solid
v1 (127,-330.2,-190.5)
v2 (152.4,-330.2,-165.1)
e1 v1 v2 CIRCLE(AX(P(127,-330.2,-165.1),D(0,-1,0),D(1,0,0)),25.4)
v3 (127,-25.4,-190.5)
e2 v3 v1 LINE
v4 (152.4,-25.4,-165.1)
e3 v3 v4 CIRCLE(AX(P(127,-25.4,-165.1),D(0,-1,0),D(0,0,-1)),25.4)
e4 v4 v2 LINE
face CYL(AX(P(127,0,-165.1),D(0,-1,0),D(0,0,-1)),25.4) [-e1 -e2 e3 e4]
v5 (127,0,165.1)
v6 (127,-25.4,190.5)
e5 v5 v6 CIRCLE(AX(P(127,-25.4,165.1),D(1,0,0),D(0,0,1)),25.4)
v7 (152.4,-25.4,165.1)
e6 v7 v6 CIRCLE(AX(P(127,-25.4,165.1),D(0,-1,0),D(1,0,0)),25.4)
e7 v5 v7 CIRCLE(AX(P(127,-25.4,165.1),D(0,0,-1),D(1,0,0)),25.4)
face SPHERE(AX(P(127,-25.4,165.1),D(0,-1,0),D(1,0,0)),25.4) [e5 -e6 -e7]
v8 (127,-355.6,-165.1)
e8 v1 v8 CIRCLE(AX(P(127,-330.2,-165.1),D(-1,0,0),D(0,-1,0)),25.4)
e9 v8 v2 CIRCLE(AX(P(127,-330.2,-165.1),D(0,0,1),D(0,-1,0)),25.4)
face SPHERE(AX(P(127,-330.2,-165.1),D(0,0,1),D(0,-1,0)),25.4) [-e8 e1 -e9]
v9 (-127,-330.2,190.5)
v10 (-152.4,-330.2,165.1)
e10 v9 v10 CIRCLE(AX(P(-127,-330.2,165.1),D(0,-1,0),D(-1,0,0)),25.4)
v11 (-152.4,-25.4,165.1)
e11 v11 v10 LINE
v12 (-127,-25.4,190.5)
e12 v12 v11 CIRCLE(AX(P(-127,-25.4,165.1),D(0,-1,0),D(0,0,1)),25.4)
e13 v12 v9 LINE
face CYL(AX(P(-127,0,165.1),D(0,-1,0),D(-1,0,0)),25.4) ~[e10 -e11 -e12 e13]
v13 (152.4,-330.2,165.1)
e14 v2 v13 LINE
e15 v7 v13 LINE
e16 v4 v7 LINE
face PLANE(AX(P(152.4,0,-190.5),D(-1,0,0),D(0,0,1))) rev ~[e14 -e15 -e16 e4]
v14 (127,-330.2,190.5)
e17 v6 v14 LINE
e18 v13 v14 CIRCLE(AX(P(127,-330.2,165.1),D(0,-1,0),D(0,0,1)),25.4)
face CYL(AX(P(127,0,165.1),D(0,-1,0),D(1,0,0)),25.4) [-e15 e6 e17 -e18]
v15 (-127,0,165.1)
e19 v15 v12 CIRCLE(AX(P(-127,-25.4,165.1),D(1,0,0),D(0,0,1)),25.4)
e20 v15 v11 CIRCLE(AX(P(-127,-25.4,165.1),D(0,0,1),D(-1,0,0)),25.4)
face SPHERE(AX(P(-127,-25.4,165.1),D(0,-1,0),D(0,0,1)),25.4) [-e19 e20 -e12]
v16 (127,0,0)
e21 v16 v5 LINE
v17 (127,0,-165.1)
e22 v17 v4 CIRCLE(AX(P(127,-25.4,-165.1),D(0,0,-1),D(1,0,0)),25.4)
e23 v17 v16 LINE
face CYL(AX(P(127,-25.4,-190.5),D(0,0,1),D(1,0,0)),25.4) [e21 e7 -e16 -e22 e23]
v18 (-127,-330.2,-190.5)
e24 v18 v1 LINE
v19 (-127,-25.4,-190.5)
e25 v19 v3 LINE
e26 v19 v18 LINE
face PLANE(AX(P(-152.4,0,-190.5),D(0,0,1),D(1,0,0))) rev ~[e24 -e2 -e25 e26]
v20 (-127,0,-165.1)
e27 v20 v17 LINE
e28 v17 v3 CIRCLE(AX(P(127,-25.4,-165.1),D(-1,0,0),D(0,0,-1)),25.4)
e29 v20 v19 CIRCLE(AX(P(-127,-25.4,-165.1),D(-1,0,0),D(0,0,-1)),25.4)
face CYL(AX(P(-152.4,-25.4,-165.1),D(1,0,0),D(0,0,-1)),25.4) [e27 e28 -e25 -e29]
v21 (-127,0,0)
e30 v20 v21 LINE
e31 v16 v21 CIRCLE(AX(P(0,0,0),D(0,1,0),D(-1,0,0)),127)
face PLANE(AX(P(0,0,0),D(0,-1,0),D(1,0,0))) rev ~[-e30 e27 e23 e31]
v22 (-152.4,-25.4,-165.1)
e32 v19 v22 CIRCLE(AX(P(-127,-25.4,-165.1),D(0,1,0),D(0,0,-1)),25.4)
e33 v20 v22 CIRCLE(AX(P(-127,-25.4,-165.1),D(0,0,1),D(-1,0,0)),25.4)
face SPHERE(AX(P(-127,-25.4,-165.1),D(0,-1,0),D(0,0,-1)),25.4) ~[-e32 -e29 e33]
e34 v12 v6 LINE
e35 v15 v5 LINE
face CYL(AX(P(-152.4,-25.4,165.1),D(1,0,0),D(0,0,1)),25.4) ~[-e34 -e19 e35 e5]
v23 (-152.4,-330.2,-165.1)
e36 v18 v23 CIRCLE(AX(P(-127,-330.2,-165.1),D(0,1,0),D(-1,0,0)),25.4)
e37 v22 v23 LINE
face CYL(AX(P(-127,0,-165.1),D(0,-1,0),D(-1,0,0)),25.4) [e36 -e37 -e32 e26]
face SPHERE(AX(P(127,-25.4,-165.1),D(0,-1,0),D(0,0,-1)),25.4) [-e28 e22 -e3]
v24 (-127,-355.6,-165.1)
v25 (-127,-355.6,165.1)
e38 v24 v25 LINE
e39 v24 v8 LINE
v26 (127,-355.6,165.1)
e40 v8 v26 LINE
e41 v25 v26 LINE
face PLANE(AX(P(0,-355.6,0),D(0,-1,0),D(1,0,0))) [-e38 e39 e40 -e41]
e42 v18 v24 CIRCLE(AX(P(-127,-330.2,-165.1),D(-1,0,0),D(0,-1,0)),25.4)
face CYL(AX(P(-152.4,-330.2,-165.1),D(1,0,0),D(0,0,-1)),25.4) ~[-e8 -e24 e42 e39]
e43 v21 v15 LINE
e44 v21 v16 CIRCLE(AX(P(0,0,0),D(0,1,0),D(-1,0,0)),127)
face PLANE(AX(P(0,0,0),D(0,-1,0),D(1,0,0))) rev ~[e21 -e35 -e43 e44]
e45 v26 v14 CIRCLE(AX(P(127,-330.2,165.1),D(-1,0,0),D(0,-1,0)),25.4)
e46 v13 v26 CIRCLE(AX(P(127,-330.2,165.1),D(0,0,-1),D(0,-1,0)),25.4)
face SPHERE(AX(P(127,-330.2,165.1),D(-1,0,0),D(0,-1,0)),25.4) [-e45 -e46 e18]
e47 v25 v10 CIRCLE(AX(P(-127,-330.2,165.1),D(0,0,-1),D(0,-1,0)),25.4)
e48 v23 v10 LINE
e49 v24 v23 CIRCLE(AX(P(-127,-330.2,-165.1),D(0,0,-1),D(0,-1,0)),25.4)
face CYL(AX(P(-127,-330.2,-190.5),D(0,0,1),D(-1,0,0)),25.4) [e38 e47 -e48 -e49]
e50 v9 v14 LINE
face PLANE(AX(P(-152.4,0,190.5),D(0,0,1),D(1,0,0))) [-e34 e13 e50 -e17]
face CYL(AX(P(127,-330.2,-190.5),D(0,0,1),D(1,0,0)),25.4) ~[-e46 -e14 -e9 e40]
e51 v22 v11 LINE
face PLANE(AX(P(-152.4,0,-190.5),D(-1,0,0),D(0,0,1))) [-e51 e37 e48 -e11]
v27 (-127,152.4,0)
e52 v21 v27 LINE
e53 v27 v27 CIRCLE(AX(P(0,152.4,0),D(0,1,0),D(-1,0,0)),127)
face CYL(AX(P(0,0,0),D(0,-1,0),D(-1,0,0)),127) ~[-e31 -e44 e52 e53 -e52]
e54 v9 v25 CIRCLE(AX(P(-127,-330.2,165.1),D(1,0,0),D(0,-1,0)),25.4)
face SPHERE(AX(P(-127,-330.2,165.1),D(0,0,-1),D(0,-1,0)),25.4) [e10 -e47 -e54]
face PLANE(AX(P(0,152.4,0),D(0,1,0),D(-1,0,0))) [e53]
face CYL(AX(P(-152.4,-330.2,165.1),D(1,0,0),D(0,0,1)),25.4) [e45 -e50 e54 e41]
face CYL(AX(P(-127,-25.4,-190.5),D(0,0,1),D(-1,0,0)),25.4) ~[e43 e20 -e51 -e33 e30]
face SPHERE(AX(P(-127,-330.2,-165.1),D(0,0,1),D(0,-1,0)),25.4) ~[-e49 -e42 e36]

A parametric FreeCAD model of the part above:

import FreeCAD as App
import Part
import Sketcher
Q = App.Units.Quantity


def add_polygon(sketch, points):
    """Adds a closed chain of lines whose ends are joined by coincident constraints."""
    first, n = sketch.GeometryCount, len(points)
    for a, b in zip(points, points[1:] + points[:1]):
        sketch.addGeometry(Part.LineSegment(App.Vector(*a, 0), App.Vector(*b, 0)), False)
    for i in range(n):
        sketch.addConstraint(Sketcher.Constraint("Coincident", first + i, 2, first + (i + 1) % n, 1))

doc = App.newDocument("Part")
body = doc.addObject("PartDesign::Body", "Body")

sketch1 = body.newObject("Sketcher::SketchObject", "Sketch")
sketch1.AttachmentSupport = (doc.getObject("XZ_Plane"), [""])
sketch1.MapMode = "FlatFace"
add_polygon(sketch1, [(-152, 190), (-152, -190), (152, -190), (152, 190)])
sketch1.addConstraint(Sketcher.Constraint("Vertical", 0))
sketch1.addConstraint(Sketcher.Constraint("Horizontal", 1))
sketch1.addConstraint(Sketcher.Constraint("Vertical", 2))
sketch1.addConstraint(Sketcher.Constraint("Horizontal", 3))
sketch1.addConstraint(Sketcher.Constraint("Symmetric", 0, 2, 2, 2, -1, 1))
sketch1.addConstraint(Sketcher.Constraint("DistanceX", 1, 1, 1, 2, Q("12 in")))
sketch1.addConstraint(Sketcher.Constraint("DistanceY", 0, 2, 0, 1, Q("15 in")))
pad1 = body.newObject("PartDesign::Pad", "Pad")
pad1.Profile = sketch1
pad1.Length = Q("14 in")
doc.recompute()

fillet = body.newObject("PartDesign::Fillet", "Fillet")
fillet.Base = (pad1, ["Edge1"])
fillet.UseAllEdges = True
fillet.Radius = Q("1 in")

sketch2 = body.newObject("Sketcher::SketchObject", "Sketch001")
sketch2.AttachmentSupport = (doc.getObject("XZ_Plane"), [""])
sketch2.MapMode = "FlatFace"
sketch2.addGeometry(Part.Circle(App.Vector(0, 0, 0), App.Vector(0, 0, 1), 127), False)
sketch2.addConstraint(Sketcher.Constraint("Coincident", 0, 3, -1, 1))
sketch2.addConstraint(Sketcher.Constraint("Diameter", 0, Q("10 in")))
pad2 = body.newObject("PartDesign::Pad", "Pad001")
pad2.Profile = sketch2
pad2.Length = Q("6 in")
pad2.Reversed = True

doc.recompute()
